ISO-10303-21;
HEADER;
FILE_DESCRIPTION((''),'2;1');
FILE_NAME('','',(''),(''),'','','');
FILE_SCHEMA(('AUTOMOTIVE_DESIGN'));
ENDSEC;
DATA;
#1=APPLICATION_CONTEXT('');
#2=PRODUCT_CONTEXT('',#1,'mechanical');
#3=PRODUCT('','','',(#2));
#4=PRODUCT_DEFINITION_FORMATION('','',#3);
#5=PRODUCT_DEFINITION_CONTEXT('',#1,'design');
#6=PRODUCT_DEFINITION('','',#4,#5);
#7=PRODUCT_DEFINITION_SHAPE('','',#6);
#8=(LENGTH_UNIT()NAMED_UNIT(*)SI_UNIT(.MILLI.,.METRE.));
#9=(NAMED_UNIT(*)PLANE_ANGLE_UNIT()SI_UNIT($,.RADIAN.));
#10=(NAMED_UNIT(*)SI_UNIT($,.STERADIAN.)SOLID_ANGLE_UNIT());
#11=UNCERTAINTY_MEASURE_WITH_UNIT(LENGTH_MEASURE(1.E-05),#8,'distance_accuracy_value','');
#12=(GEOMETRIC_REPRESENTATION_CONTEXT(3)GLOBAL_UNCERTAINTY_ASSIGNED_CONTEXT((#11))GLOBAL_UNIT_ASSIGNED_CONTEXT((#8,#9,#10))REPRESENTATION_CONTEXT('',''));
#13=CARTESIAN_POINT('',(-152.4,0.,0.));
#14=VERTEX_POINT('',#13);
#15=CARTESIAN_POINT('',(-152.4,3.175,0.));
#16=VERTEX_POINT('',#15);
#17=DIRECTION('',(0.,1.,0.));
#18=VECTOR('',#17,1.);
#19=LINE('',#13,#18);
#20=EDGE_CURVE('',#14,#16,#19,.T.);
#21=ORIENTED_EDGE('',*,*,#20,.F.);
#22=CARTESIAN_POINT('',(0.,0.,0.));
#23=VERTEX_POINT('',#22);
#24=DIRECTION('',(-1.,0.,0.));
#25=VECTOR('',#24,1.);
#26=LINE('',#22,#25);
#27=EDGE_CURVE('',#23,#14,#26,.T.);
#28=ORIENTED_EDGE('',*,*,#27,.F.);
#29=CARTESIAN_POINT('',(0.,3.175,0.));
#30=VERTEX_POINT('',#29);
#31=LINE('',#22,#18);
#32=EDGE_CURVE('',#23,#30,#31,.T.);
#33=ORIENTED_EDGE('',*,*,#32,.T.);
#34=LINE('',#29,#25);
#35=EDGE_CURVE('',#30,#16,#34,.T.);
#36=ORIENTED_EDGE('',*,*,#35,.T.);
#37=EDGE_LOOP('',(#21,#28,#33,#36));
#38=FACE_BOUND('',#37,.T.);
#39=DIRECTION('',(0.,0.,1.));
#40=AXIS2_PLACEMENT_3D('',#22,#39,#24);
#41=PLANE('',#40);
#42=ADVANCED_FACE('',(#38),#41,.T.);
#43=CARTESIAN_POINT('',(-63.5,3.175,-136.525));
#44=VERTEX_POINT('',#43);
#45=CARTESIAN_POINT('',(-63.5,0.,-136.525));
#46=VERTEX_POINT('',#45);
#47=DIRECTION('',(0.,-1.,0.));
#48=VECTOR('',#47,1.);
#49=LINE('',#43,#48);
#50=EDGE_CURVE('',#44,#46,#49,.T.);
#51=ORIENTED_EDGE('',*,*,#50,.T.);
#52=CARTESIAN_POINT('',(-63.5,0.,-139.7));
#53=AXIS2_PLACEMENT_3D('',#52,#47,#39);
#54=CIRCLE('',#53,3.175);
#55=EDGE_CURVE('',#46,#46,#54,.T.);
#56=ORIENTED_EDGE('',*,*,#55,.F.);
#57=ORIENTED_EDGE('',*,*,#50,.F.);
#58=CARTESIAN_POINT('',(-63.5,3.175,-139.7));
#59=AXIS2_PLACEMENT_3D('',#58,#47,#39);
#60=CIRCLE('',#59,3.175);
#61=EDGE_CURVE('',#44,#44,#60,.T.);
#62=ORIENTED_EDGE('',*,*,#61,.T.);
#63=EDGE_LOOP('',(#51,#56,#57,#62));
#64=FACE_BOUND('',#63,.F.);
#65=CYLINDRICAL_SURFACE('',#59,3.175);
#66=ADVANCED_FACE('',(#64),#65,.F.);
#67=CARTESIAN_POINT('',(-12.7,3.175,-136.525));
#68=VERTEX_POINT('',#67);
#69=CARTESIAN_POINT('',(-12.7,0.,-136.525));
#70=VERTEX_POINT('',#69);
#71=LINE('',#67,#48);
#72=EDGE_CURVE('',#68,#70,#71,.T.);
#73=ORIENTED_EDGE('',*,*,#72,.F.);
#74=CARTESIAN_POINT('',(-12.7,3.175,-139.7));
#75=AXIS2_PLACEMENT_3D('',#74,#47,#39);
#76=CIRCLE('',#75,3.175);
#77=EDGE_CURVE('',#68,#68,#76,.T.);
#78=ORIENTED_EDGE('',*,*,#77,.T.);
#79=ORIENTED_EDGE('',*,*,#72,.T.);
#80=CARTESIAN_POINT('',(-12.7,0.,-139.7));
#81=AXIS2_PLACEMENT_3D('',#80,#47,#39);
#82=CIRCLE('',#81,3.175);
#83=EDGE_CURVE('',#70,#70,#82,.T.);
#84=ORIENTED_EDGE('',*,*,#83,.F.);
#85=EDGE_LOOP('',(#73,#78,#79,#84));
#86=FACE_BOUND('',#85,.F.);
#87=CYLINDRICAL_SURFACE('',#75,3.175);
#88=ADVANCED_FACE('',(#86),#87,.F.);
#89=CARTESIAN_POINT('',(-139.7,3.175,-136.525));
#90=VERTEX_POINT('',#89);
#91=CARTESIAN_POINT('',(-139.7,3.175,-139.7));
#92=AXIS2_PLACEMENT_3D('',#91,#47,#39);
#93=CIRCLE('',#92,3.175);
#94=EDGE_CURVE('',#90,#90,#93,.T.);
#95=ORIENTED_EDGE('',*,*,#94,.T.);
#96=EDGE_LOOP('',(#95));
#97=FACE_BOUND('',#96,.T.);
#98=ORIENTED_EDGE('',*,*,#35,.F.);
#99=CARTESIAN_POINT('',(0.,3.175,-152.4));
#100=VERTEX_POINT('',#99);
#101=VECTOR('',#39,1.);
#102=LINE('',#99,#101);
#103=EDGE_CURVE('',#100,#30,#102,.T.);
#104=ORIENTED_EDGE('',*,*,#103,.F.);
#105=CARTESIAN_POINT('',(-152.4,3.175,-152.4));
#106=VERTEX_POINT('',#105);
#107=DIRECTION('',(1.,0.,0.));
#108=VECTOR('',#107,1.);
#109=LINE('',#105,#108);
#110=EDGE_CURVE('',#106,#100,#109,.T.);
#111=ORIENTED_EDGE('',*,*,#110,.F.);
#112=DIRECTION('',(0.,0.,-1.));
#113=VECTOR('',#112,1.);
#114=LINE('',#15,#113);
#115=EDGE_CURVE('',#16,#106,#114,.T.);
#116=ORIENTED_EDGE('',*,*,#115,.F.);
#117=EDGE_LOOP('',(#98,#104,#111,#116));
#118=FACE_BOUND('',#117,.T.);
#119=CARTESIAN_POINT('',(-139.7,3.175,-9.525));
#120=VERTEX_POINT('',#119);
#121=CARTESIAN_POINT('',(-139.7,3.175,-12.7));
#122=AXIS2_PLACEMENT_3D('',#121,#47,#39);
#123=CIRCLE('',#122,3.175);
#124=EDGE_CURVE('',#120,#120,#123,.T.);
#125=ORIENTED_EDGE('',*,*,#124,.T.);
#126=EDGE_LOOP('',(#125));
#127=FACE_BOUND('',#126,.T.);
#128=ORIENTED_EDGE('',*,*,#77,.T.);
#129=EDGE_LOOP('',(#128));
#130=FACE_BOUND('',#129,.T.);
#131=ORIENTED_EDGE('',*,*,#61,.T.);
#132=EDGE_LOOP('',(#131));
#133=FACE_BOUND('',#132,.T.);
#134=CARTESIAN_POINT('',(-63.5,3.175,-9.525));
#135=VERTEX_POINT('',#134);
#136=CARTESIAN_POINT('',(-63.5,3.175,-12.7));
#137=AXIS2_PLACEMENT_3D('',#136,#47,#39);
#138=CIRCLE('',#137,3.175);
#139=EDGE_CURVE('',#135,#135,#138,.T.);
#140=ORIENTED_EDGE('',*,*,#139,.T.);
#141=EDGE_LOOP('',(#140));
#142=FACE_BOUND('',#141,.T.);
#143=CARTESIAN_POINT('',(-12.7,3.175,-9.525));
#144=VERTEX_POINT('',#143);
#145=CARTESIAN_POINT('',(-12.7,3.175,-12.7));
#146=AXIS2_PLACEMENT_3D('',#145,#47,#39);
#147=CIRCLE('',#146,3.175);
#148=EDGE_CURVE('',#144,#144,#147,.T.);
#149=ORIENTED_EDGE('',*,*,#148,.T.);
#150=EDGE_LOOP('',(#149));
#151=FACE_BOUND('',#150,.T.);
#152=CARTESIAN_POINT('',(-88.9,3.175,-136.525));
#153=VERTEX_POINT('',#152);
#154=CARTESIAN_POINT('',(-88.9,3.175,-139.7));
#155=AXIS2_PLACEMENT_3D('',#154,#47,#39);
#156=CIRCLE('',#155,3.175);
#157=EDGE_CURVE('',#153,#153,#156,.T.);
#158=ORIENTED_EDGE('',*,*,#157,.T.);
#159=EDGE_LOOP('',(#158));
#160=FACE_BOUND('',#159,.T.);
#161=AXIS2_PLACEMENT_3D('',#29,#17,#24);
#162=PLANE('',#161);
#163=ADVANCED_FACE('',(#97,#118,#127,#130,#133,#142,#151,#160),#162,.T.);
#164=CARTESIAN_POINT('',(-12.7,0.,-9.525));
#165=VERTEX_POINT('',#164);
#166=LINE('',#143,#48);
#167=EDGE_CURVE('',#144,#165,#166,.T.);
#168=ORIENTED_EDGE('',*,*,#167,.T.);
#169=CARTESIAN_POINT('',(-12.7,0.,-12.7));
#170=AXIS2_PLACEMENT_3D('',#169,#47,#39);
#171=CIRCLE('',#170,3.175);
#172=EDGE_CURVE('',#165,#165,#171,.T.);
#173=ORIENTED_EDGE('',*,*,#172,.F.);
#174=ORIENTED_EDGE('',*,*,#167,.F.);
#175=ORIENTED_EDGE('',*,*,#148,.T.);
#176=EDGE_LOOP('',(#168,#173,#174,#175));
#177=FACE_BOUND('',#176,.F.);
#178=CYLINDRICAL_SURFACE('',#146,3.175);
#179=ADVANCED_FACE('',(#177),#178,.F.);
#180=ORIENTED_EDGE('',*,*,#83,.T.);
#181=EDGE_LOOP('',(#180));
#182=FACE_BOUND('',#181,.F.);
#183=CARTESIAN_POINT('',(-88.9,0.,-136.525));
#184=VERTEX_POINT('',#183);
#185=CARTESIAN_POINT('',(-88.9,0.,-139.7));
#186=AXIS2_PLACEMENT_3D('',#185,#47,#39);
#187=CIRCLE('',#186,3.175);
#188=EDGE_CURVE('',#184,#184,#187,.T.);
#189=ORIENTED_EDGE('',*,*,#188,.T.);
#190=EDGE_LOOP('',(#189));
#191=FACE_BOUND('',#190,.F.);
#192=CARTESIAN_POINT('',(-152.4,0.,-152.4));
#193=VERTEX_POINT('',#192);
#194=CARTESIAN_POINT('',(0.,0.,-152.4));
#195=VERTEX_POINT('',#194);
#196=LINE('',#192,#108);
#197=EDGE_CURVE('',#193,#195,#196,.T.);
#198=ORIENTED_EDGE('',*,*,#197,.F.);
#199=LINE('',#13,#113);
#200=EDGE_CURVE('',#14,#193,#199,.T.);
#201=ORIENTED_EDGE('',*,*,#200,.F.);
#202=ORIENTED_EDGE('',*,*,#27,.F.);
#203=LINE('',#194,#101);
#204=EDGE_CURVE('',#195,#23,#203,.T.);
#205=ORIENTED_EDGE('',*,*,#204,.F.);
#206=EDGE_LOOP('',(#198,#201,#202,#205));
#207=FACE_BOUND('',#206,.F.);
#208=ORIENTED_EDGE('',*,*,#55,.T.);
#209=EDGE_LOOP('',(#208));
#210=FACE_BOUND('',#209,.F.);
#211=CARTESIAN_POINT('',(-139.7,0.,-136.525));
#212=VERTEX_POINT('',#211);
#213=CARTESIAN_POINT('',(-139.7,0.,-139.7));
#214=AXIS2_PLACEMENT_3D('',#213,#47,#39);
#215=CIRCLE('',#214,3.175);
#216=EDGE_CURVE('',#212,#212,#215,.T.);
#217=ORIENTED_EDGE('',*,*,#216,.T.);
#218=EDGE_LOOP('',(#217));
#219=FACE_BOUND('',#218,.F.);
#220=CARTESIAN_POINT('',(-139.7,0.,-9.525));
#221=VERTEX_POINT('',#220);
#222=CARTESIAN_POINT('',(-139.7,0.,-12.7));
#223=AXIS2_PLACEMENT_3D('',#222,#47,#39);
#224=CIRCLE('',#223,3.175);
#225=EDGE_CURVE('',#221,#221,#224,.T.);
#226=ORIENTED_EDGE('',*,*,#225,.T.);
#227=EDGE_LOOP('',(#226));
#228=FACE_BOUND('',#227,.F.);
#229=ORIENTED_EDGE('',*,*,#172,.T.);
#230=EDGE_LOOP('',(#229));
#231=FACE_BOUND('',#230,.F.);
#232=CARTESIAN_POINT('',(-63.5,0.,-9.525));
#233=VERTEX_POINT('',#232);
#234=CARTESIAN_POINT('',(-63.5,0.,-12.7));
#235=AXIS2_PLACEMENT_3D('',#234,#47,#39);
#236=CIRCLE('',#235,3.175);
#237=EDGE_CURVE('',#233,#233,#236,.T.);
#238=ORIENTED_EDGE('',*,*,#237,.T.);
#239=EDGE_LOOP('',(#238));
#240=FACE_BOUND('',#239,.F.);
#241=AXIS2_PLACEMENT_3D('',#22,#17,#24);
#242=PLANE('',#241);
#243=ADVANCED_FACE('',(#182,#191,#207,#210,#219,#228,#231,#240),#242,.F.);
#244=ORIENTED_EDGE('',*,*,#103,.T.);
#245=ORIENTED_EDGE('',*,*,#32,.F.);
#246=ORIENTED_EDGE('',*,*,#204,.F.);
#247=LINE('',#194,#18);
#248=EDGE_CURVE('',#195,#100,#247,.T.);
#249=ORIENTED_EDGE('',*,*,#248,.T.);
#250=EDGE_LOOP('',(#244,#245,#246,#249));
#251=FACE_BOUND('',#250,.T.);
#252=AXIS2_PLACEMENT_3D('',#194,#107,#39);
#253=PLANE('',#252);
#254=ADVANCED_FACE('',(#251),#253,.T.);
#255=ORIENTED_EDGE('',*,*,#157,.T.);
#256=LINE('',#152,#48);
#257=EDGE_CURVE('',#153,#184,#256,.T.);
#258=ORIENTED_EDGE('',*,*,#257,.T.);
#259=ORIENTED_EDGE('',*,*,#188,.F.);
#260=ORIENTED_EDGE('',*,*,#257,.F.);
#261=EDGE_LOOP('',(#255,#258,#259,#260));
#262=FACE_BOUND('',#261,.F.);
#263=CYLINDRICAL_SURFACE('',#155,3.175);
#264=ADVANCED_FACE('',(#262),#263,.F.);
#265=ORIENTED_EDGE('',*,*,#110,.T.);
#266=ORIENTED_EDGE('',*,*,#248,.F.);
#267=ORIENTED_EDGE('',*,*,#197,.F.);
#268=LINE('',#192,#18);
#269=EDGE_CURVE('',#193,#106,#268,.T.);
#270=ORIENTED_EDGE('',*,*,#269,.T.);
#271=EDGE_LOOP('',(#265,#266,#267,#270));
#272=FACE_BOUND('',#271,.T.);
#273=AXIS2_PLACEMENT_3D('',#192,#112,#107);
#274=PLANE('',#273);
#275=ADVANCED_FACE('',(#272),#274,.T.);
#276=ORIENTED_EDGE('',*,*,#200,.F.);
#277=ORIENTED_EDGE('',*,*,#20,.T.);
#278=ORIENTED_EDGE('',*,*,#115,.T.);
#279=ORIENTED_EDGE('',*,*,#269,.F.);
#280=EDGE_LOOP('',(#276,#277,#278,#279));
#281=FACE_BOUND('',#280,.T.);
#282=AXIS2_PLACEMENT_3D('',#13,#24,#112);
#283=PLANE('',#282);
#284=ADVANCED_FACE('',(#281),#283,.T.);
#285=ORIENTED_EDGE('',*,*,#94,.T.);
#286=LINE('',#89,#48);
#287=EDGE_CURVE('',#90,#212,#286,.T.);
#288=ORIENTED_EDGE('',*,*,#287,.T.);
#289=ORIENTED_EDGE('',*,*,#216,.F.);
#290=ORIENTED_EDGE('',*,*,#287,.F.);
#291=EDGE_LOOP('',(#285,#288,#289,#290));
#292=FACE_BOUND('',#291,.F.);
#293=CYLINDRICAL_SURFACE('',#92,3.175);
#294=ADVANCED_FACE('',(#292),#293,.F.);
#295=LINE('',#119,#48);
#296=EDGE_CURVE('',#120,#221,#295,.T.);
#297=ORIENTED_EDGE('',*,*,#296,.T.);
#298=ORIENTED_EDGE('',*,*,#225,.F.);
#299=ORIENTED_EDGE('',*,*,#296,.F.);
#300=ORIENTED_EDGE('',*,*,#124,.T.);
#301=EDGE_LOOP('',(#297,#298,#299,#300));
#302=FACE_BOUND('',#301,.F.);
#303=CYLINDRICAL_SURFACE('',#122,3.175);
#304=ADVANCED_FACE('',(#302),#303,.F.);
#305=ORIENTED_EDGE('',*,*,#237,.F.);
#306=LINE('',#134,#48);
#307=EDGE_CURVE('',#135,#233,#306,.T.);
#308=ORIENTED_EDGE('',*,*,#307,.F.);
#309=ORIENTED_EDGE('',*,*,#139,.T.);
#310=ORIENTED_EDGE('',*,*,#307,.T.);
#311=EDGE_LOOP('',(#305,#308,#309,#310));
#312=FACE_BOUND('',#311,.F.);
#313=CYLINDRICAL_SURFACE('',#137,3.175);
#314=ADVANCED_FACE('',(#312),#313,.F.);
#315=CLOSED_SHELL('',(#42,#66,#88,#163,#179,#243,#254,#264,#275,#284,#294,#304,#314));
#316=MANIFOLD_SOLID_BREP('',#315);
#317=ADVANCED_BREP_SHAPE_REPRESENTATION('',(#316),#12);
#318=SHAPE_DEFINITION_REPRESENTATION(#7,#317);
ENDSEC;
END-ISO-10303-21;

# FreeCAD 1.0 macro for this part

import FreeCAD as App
import Part
import Sketcher

V = App.Vector
Q = App.Units.Quantity

doc = App.newDocument("Part")
body = doc.addObject("PartDesign::Body", "Body")

sketch1 = doc.addObject("Sketcher::SketchObject", "Sketch")
body.addObject(sketch1)
sketch1.AttachmentSupport = (doc.XZ_Plane, [""])
sketch1.MapMode = "FlatFace"
sketch1.addGeometry([
    Part.LineSegment(V(-152, 0, 0), V(0, 0, 0)),
    Part.LineSegment(V(0, 0, 0), V(0, -152, 0)),
    Part.LineSegment(V(0, -152, 0), V(-152, -152, 0)),
    Part.LineSegment(V(-152, -152, 0), V(-152, 0, 0)),
], False)
sketch1.addConstraint([
    Sketcher.Constraint("Coincident", 0, 2, 1, 1),
    Sketcher.Constraint("Coincident", 1, 2, 2, 1),
    Sketcher.Constraint("Coincident", 2, 2, 3, 1),
    Sketcher.Constraint("Coincident", 3, 2, 0, 1),
    Sketcher.Constraint("Horizontal", 0),
    Sketcher.Constraint("Vertical", 1),
    Sketcher.Constraint("Horizontal", 2),
    Sketcher.Constraint("Vertical", 3),
    Sketcher.Constraint("Coincident", 0, 2, -1, 1),
    Sketcher.Constraint("Equal", 2, 1),
    Sketcher.Constraint("DistanceX", 0, 1, 0, 2, Q("6 in")),
])
pad1 = doc.addObject("PartDesign::Pad", "Pad")
body.addObject(pad1)
pad1.Profile = sketch1
pad1.Length = Q("0.125 in")
pad1.Reversed = True

sketch2 = doc.addObject("Sketcher::SketchObject", "Sketch001")
body.addObject(sketch2)
sketch2.AttachmentSupport = (doc.XZ_Plane, [""])
sketch2.MapMode = "FlatFace"
sketch2.AttachmentOffset = App.Placement(V(0, 0, -0.125 * 25.4), App.Rotation())
sketch2.addGeometry([
    Part.Circle(V(-139.7, -12.7, 0), V(0, 0, 1), 3.2),
    Part.Circle(V(-63.5, -12.7, 0), V(0, 0, 1), 3.2),
    Part.Circle(V(-12.7, -12.7, 0), V(0, 0, 1), 3.2),
    Part.Circle(V(-12.7, -139.7, 0), V(0, 0, 1), 3.2),
    Part.Circle(V(-63.5, -139.7, 0), V(0, 0, 1), 3.2),
    Part.Circle(V(-139.7, -139.7, 0), V(0, 0, 1), 3.2),
], False)
sketch2.addConstraint([
    Sketcher.Constraint("Equal", 0, 1),
    Sketcher.Constraint("Equal", 1, 2),
    Sketcher.Constraint("Equal", 2, 3),
    Sketcher.Constraint("Equal", 3, 4),
    Sketcher.Constraint("Equal", 4, 5),
    Sketcher.Constraint("Horizontal", 0, 3, 1, 3),
    Sketcher.Constraint("Horizontal", 1, 3, 2, 3),
    Sketcher.Constraint("Horizontal", 3, 3, 4, 3),
    Sketcher.Constraint("Horizontal", 4, 3, 5, 3),
    Sketcher.Constraint("Vertical", 2, 3, 3, 3),
    Sketcher.Constraint("Vertical", 1, 3, 4, 3),
    Sketcher.Constraint("Vertical", 0, 3, 5, 3),
    Sketcher.Constraint("Diameter", 0, Q("0.25 in")),
    Sketcher.Constraint("DistanceX", 0, 3, 1, 3, Q("3 in")),
    Sketcher.Constraint("DistanceX", 1, 3, 2, 3, Q("2 in")),
    Sketcher.Constraint("DistanceY", 3, 3, 2, 3, Q("5 in")),
    Sketcher.Constraint("DistanceX", 0, 3, -1, 1, Q("5.5 in")),
    Sketcher.Constraint("DistanceY", 0, 3, -1, 1, Q("0.5 in")),
])
doc.recompute()
hole = doc.addObject("PartDesign::Hole", "Hole")
body.addObject(hole)
hole.Profile = sketch2
hole.ThreadType = "None"
hole.Diameter = Q("0.25 in")
hole.DepthType = "ThroughAll"
hole.Reversed = True

sketch3 = doc.addObject("Sketcher::SketchObject", "Sketch002")
body.addObject(sketch3)
sketch3.AttachmentSupport = (doc.XZ_Plane, [""])
sketch3.MapMode = "FlatFace"
sketch3.AttachmentOffset = App.Placement(V(0, 0, -0.125 * 25.4), App.Rotation())
sketch3.addGeometry(Part.Circle(V(-88.9, -139.7, 0), V(0, 0, 1), 3.2), False)
sketch3.addConstraint([
    Sketcher.Constraint("Diameter", 0, Q("0.25 in")),
    Sketcher.Constraint("DistanceX", 0, 3, -1, 1, Q("3.5 in")),
    Sketcher.Constraint("DistanceY", 0, 3, -1, 1, Q("5.5 in")),
])
doc.recompute()
hole2 = doc.addObject("PartDesign::Hole", "Hole001")
body.addObject(hole2)
hole2.Profile = sketch3
hole2.ThreadType = "None"
hole2.Diameter = Q("0.25 in")
hole2.DepthType = "ThroughAll"
hole2.Reversed = True

doc.recompute()
